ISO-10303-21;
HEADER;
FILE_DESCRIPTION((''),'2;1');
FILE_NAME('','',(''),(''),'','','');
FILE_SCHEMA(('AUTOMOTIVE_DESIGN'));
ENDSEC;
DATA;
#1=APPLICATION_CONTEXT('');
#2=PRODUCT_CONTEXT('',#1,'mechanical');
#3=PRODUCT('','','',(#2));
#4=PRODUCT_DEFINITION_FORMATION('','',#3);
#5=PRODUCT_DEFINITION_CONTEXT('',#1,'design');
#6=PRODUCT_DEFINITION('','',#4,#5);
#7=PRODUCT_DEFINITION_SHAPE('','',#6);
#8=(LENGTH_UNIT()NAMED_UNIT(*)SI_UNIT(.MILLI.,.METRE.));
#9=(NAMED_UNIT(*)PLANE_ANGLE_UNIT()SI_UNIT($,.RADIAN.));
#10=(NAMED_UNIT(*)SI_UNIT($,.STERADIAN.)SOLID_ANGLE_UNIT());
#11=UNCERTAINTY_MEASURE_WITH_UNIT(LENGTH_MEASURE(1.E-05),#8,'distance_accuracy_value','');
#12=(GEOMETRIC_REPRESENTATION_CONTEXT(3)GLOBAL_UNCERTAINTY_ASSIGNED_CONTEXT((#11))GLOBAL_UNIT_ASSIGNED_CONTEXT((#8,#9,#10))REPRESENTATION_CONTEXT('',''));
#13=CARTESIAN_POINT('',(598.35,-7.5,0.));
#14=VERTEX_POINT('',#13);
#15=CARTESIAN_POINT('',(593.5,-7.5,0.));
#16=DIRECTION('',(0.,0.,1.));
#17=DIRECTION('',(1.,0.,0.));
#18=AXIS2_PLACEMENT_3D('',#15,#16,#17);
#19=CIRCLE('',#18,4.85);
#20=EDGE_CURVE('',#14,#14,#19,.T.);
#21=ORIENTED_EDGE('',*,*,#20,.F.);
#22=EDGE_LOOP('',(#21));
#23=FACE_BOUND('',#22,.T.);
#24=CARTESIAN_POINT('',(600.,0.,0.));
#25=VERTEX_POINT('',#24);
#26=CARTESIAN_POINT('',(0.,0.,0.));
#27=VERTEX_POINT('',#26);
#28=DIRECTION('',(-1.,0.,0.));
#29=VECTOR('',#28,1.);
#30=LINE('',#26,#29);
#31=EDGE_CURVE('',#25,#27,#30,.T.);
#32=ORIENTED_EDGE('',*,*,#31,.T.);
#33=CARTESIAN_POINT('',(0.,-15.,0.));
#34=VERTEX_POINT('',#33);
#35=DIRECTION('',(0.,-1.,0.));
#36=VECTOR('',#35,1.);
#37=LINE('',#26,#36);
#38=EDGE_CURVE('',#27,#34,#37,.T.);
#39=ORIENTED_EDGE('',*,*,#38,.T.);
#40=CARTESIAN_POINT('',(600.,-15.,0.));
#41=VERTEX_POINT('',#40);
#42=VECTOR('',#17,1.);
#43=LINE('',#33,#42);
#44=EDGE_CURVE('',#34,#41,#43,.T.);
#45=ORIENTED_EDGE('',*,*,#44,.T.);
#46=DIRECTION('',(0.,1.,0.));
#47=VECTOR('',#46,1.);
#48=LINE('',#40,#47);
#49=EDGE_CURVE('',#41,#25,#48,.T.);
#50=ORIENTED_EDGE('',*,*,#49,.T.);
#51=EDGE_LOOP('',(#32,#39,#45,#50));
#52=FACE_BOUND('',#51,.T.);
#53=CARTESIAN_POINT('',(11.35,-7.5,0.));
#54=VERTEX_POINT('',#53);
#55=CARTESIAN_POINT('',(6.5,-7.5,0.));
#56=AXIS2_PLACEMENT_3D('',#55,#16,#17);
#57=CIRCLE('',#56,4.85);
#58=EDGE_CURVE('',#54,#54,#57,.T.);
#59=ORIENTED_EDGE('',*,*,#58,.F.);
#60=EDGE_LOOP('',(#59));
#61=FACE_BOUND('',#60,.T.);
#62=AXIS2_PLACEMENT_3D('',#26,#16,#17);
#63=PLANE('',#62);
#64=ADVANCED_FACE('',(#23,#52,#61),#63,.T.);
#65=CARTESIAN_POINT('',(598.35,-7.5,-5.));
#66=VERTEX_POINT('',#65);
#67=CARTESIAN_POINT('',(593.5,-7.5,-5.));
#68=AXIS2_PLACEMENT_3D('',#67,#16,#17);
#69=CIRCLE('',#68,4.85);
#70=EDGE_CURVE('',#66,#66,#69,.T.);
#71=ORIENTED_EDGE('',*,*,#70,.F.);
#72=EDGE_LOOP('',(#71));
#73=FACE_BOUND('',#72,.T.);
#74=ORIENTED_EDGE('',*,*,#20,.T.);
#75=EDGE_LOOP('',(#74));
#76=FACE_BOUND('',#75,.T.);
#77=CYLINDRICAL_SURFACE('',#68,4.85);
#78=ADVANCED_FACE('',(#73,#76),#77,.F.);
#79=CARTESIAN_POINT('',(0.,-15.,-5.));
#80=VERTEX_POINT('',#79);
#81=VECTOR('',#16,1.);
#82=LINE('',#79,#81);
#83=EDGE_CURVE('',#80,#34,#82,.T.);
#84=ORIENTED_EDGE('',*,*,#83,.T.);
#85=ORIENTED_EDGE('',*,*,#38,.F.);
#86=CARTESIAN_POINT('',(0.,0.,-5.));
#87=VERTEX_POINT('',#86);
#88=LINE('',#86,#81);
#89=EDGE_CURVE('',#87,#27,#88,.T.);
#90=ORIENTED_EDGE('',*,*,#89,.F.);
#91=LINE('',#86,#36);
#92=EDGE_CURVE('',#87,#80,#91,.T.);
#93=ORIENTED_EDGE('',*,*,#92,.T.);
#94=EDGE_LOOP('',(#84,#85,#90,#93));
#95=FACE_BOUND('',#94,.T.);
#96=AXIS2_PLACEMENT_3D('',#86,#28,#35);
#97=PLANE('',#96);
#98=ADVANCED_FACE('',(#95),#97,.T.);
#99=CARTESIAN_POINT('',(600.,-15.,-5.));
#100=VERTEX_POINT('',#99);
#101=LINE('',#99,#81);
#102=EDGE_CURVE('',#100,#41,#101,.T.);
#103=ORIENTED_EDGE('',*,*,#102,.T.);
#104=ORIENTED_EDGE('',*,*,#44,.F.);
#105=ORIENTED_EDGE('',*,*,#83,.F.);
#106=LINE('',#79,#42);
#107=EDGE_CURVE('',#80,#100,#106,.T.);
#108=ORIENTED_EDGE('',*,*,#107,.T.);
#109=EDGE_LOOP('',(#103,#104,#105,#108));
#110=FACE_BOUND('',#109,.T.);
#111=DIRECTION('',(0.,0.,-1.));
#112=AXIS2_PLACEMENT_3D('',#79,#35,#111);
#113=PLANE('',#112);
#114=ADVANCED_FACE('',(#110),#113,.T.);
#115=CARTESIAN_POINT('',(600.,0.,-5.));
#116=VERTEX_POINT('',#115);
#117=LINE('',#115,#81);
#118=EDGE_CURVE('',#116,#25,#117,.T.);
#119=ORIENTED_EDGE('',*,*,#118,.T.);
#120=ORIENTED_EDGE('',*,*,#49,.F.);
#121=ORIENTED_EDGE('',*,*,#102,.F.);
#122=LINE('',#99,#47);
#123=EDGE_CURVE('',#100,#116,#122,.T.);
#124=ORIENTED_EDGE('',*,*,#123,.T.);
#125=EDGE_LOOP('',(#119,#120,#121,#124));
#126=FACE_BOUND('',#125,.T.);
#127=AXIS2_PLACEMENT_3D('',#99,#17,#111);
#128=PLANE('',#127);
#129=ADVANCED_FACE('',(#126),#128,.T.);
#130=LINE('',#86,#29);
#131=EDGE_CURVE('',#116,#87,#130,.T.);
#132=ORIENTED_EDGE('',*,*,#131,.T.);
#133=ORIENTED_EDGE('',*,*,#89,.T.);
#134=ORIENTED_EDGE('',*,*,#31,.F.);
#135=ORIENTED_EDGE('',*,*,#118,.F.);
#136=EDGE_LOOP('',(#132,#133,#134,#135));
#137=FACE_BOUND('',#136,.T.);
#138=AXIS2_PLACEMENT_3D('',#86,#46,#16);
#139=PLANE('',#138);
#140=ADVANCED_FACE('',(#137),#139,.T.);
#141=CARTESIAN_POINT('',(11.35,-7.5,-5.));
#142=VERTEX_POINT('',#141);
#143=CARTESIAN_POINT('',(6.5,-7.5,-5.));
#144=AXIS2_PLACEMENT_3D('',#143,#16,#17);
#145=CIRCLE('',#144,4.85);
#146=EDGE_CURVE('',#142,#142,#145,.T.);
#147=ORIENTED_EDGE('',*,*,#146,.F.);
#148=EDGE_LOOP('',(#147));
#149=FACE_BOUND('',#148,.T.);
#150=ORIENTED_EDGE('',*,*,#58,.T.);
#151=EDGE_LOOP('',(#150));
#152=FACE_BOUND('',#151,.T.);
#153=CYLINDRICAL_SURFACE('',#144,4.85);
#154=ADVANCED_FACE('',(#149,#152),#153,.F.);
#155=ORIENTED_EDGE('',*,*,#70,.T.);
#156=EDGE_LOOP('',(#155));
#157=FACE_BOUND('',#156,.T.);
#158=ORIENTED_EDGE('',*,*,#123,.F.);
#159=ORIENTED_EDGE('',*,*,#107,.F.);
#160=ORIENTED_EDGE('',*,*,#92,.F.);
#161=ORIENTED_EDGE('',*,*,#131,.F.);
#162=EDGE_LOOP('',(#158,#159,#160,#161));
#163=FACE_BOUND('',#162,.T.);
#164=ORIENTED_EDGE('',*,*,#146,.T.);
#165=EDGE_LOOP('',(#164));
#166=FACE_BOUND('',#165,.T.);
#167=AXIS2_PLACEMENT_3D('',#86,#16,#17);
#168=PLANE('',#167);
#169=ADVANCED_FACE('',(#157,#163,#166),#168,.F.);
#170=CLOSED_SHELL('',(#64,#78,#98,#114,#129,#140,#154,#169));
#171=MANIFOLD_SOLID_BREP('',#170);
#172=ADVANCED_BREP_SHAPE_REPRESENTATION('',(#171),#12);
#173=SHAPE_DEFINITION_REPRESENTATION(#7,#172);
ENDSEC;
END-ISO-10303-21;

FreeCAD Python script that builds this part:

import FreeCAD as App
import Part
import Sketcher

V = App.Vector
Q = App.Units.Quantity

doc = App.newDocument("Part")
body = doc.addObject("PartDesign::Body", "Body")

# Sketch on XY plane
sketch1 = doc.addObject("Sketcher::SketchObject", "Sketch")
body.addObject(sketch1)
sketch1.AttachmentSupport = (doc.XY_Plane, [""])
sketch1.MapMode = "FlatFace"
sketch1.addGeometry([
    Part.LineSegment(V(0, 0, 0), V(0, -15, 0)),  # 0
    Part.LineSegment(V(0, -15, 0), V(600, -15, 0)),  # 1
    Part.LineSegment(V(600, -15, 0), V(600, 0, 0)),  # 2
    Part.LineSegment(V(600, 0, 0), V(0, 0, 0)),  # 3
    Part.Circle(V(6.5, -7.5, 0), V(0, 0, 1), 4.8),  # 4
    Part.Circle(V(593.5, -7.5, 0), V(0, 0, 1), 4.8),  # 5
], False)
sketch1.addConstraint([
    Sketcher.Constraint("Coincident", 0, 2, 1, 1),
    Sketcher.Constraint("Coincident", 1, 2, 2, 1),
    Sketcher.Constraint("Coincident", 2, 2, 3, 1),
    Sketcher.Constraint("Coincident", 3, 2, 0, 1),
    Sketcher.Constraint("Vertical", 0),
    Sketcher.Constraint("Horizontal", 1),
    Sketcher.Constraint("Vertical", 2),
    Sketcher.Constraint("Horizontal", 3),
    Sketcher.Constraint("Coincident", 3, 2, -1, 1),
    Sketcher.Constraint("Equal", 4, 5),
    Sketcher.Constraint("Horizontal", 4, 3, 5, 3),
    Sketcher.Constraint("Diameter", 4, Q("9.7 mm")),
    Sketcher.Constraint("DistanceX", 1, 1, 1, 2, Q("600 mm")),
    Sketcher.Constraint("DistanceY", 0, 2, 0, 1, Q("15 mm")),
    Sketcher.Constraint("DistanceX", 4, 3, 5, 3, Q("587 mm")),
    Sketcher.Constraint("DistanceX", -1, 1, 4, 3, Q("6.5 mm")),
    Sketcher.Constraint("DistanceY", 4, 3, -1, 1, Q("7.5 mm")),
])
pad1 = doc.addObject("PartDesign::Pad", "Pad")
body.addObject(pad1)
pad1.Profile = sketch1
pad1.Length = 5
pad1.Reversed = True

doc.recompute()
